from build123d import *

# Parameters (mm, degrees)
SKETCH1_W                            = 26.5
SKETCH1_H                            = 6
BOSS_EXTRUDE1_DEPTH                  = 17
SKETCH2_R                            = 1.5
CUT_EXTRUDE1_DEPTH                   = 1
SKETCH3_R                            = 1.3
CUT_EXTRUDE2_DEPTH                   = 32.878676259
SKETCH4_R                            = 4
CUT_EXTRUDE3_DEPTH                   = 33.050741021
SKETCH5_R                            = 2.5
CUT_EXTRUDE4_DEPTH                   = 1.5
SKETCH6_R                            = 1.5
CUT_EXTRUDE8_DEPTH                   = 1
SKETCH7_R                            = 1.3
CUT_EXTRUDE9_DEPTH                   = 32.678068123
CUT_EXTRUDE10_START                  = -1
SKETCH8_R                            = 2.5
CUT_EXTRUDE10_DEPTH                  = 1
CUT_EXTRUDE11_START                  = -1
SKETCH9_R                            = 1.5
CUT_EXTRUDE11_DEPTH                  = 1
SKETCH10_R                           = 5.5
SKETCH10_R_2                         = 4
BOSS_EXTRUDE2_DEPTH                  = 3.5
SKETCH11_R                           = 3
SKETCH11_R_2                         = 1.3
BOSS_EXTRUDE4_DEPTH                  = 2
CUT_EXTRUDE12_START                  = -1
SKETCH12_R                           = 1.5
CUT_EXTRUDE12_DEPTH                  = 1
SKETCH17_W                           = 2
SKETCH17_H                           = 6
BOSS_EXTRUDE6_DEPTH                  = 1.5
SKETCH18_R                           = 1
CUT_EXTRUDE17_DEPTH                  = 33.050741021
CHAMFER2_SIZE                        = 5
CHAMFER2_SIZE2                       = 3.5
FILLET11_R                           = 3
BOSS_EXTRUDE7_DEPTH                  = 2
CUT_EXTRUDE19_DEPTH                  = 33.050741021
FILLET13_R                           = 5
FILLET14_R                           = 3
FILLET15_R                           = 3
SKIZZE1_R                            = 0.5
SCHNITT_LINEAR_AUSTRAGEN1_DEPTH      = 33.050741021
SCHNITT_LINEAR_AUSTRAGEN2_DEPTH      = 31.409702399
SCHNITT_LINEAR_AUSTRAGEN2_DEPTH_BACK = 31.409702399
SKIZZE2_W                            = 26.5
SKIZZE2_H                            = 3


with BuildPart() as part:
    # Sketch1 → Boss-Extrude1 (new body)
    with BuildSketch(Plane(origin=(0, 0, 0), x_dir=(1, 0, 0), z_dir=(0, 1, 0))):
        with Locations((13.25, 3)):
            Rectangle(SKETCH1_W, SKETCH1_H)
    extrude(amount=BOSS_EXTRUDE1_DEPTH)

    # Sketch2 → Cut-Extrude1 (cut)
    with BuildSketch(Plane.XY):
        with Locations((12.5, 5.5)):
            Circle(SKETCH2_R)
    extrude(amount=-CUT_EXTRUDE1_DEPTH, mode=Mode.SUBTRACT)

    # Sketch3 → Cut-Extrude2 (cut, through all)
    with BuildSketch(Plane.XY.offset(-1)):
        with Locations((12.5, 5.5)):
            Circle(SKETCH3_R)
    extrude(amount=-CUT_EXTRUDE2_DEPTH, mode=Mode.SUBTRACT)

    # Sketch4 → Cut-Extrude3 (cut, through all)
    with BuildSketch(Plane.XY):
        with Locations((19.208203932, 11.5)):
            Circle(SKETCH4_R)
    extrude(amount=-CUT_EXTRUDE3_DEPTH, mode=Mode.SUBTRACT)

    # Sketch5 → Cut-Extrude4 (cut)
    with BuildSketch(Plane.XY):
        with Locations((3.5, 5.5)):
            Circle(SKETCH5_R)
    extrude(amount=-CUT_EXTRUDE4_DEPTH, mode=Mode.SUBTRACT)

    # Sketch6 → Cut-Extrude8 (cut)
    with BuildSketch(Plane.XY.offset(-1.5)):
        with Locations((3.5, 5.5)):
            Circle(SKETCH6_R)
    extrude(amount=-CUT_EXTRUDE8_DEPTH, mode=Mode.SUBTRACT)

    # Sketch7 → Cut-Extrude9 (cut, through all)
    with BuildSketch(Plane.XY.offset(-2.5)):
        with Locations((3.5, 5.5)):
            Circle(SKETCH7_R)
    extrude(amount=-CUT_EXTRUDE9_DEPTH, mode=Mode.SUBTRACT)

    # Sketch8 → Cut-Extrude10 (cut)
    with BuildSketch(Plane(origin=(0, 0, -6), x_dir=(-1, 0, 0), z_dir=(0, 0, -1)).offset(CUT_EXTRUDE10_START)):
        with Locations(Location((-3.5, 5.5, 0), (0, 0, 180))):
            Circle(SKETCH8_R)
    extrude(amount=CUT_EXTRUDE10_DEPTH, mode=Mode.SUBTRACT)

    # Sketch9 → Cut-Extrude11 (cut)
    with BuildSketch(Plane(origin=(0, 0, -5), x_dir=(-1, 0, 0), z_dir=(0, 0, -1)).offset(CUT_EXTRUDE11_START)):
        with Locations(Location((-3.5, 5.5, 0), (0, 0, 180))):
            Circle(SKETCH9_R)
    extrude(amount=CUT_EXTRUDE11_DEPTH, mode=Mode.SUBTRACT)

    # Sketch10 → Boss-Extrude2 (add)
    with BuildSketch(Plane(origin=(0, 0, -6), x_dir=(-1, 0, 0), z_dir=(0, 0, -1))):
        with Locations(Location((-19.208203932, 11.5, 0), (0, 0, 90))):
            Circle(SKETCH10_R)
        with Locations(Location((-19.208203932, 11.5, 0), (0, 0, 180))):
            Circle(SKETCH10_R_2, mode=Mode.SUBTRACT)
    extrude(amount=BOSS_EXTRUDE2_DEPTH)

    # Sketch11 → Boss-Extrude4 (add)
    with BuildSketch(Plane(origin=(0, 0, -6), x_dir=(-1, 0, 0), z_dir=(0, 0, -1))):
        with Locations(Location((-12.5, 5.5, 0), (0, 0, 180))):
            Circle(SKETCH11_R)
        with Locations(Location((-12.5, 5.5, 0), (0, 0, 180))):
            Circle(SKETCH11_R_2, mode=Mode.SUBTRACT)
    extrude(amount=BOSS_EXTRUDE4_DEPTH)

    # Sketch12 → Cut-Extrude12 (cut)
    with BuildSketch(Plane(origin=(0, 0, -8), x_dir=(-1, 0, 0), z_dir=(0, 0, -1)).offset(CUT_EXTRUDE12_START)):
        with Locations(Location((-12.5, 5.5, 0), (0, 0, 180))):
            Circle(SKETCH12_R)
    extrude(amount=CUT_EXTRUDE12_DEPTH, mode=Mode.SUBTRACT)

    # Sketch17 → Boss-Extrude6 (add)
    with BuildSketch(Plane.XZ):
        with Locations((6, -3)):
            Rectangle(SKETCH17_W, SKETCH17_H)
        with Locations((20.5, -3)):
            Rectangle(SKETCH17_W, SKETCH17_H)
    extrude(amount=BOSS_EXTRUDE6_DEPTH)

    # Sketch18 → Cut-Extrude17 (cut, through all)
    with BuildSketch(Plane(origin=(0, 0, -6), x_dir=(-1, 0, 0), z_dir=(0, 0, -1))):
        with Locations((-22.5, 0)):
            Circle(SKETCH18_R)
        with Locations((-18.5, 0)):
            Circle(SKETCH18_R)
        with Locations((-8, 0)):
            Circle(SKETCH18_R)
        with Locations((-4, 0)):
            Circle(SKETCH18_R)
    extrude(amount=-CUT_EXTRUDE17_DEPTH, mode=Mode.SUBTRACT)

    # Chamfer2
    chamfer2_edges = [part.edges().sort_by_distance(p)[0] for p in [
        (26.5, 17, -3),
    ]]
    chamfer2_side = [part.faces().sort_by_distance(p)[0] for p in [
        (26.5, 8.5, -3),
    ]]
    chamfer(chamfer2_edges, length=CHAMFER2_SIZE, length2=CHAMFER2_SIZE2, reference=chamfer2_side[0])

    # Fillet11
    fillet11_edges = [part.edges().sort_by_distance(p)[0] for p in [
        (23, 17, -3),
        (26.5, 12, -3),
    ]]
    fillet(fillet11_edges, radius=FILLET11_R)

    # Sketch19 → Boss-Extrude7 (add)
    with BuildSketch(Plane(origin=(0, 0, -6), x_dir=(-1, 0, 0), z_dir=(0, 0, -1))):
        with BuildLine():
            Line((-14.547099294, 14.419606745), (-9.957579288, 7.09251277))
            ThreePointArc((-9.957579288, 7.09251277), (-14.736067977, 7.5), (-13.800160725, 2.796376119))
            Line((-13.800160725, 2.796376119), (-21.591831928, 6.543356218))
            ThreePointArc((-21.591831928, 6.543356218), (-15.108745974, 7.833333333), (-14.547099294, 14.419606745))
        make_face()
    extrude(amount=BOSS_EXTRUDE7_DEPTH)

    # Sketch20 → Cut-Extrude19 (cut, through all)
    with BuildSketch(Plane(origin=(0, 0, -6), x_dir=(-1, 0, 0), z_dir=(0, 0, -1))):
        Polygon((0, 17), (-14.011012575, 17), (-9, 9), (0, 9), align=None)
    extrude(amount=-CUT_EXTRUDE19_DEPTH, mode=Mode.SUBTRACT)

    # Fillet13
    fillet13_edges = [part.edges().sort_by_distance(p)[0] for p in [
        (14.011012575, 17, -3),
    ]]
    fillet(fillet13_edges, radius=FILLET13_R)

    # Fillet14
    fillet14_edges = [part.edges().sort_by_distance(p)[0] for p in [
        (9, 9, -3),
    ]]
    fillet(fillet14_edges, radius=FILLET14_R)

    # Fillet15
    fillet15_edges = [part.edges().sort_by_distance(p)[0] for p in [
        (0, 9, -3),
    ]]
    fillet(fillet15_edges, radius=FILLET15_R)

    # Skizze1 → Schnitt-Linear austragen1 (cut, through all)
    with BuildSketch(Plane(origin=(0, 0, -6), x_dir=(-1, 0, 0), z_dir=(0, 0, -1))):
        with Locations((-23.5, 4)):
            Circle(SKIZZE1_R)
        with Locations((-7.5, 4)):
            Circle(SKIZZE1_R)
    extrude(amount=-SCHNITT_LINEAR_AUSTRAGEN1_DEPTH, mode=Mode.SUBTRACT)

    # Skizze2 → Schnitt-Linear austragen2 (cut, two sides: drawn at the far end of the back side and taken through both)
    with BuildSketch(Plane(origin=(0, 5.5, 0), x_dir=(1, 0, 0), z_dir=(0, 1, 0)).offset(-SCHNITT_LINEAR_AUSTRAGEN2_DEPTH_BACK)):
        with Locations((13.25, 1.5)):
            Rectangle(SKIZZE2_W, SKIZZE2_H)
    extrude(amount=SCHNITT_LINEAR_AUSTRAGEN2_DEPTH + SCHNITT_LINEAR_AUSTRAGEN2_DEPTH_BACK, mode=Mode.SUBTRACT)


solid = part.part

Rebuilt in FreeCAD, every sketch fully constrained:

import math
import FreeCAD as App
import Part
import Sketcher

V = App.Vector
Q = App.Units.Quantity


def edges_at(feature, points):
    """Names of the edges that pass closest to the given points."""
    edges = feature.Shape.Edges
    near = lambda p: min(range(len(edges)), key=lambda i: edges[i].distToShape(Part.Vertex(*p))[0])
    return sorted({f"Edge{near(p) + 1}" for p in points})

doc = App.newDocument("Part")
body = doc.addObject("PartDesign::Body", "Body")

# Sketch on XZ plane
sketch1 = body.newObject("Sketcher::SketchObject", "Sketch")
sketch1.AttachmentSupport = (doc.getObject("XZ_Plane"), [""])
sketch1.MapMode = "FlatFace"
sketch1.addGeometry(Part.LineSegment(V(0, -6, 0), V(0, 0, 0)), False)
sketch1.addGeometry(Part.LineSegment(V(0, 0, 0), V(26, 0, 0)), False)
sketch1.addGeometry(Part.LineSegment(V(26, 0, 0), V(26, -6, 0)), False)
sketch1.addGeometry(Part.LineSegment(V(26, -6, 0), V(0, -6, 0)), False)
sketch1.addConstraint(Sketcher.Constraint("Coincident", 0, 2, 1, 1))
sketch1.addConstraint(Sketcher.Constraint("Coincident", 1, 2, 2, 1))
sketch1.addConstraint(Sketcher.Constraint("Coincident", 2, 2, 3, 1))
sketch1.addConstraint(Sketcher.Constraint("Coincident", 3, 2, 0, 1))
sketch1.addConstraint(Sketcher.Constraint("Vertical", 0))
sketch1.addConstraint(Sketcher.Constraint("Horizontal", 1))
sketch1.addConstraint(Sketcher.Constraint("Vertical", 2))
sketch1.addConstraint(Sketcher.Constraint("Horizontal", 3))
sketch1.addConstraint(Sketcher.Constraint("Coincident", 0, 2, -1, 1))
sketch1.addConstraint(Sketcher.Constraint("DistanceY", 0, 1, 0, 2, Q("6 mm")))
sketch1.addConstraint(Sketcher.Constraint("DistanceX", 1, 1, 1, 2, Q("26.5 mm")))
pad1 = body.newObject("PartDesign::Pad", "Pad")
pad1.Profile = sketch1
pad1.Length = 17
pad1.Reversed = True

# Sketch on XY plane
sketch2 = body.newObject("Sketcher::SketchObject", "Sketch001")
sketch2.AttachmentSupport = (doc.getObject("XY_Plane"), [""])
sketch2.MapMode = "FlatFace"
sketch2.addGeometry(Part.Circle(V(12.5, 5.5, 0), V(0, 0, 1), 1.5), False)
sketch2.addConstraint(Sketcher.Constraint("Diameter", 0, Q("3 mm")))
sketch2.addConstraint(Sketcher.Constraint("DistanceX", -1, 1, 0, 3, Q("12.5 mm")))
sketch2.addConstraint(Sketcher.Constraint("DistanceY", -1, 1, 0, 3, Q("5.5 mm")))
pocket1 = body.newObject("PartDesign::Pocket", "Pocket")
pocket1.Profile = sketch2
pocket1.Length = 1

# Sketch on XY plane
sketch3 = body.newObject("Sketcher::SketchObject", "Sketch002")
sketch3.AttachmentSupport = (doc.getObject("XY_Plane"), [""])
sketch3.MapMode = "FlatFace"
sketch3.AttachmentOffset = App.Placement(V(0, 0, -1), App.Rotation())
sketch3.addGeometry(Part.Circle(V(12.5, 5.5, 0), V(0, 0, 1), 1.3), False)
sketch3.addConstraint(Sketcher.Constraint("Diameter", 0, Q("2.6 mm")))
sketch3.addConstraint(Sketcher.Constraint("DistanceX", -1, 1, 0, 3, Q("12.5 mm")))
sketch3.addConstraint(Sketcher.Constraint("DistanceY", -1, 1, 0, 3, Q("5.5 mm")))
pocket2 = body.newObject("PartDesign::Pocket", "Pocket001")
pocket2.Profile = sketch3
pocket2.Type = "ThroughAll"

# Sketch on XY plane
sketch4 = body.newObject("Sketcher::SketchObject", "Sketch003")
sketch4.AttachmentSupport = (doc.getObject("XY_Plane"), [""])
sketch4.MapMode = "FlatFace"
sketch4.addGeometry(Part.Circle(V(19.2, 11.5, 0), V(0, 0, 1), 4), False)
sketch4.addConstraint(Sketcher.Constraint("Diameter", 0, Q("8 mm")))
sketch4.addConstraint(Sketcher.Constraint("DistanceY", -1, 1, 0, 3, Q("11.5 mm")))
sketch4.addConstraint(Sketcher.Constraint("DistanceX", -1, 1, 0, 3, Q("19.208204 mm")))
pocket3 = body.newObject("PartDesign::Pocket", "Pocket002")
pocket3.Profile = sketch4
pocket3.Type = "ThroughAll"

# Sketch on XY plane
sketch5 = body.newObject("Sketcher::SketchObject", "Sketch004")
sketch5.AttachmentSupport = (doc.getObject("XY_Plane"), [""])
sketch5.MapMode = "FlatFace"
sketch5.addGeometry(Part.Circle(V(3.5, 5.5, 0), V(0, 0, 1), 2.5), False)
sketch5.addConstraint(Sketcher.Constraint("Diameter", 0, Q("5 mm")))
sketch5.addConstraint(Sketcher.Constraint("DistanceX", -1, 1, 0, 3, Q("3.5 mm")))
sketch5.addConstraint(Sketcher.Constraint("DistanceY", -1, 1, 0, 3, Q("5.5 mm")))
pocket4 = body.newObject("PartDesign::Pocket", "Pocket003")
pocket4.Profile = sketch5
pocket4.Length = 1.5

# Sketch on XY plane
sketch6 = body.newObject("Sketcher::SketchObject", "Sketch005")
sketch6.AttachmentSupport = (doc.getObject("XY_Plane"), [""])
sketch6.MapMode = "FlatFace"
sketch6.AttachmentOffset = App.Placement(V(0, 0, -1.5), App.Rotation())
sketch6.addGeometry(Part.Circle(V(3.5, 5.5, 0), V(0, 0, 1), 1.5), False)
sketch6.addConstraint(Sketcher.Constraint("Diameter", 0, Q("3 mm")))
sketch6.addConstraint(Sketcher.Constraint("DistanceX", -1, 1, 0, 3, Q("3.5 mm")))
sketch6.addConstraint(Sketcher.Constraint("DistanceY", -1, 1, 0, 3, Q("5.5 mm")))
pocket5 = body.newObject("PartDesign::Pocket", "Pocket004")
pocket5.Profile = sketch6
pocket5.Length = 1

# Sketch on XY plane
sketch7 = body.newObject("Sketcher::SketchObject", "Sketch006")
sketch7.AttachmentSupport = (doc.getObject("XY_Plane"), [""])
sketch7.MapMode = "FlatFace"
sketch7.AttachmentOffset = App.Placement(V(0, 0, -2.5), App.Rotation())
sketch7.addGeometry(Part.Circle(V(3.5, 5.5, 0), V(0, 0, 1), 1.3), False)
sketch7.addConstraint(Sketcher.Constraint("Diameter", 0, Q("2.6 mm")))
sketch7.addConstraint(Sketcher.Constraint("DistanceX", -1, 1, 0, 3, Q("3.5 mm")))
sketch7.addConstraint(Sketcher.Constraint("DistanceY", -1, 1, 0, 3, Q("5.5 mm")))
pocket6 = body.newObject("PartDesign::Pocket", "Pocket005")
pocket6.Profile = sketch7
pocket6.Type = "ThroughAll"

# Sketch on XY plane
sketch8 = body.newObject("Sketcher::SketchObject", "Sketch007")
sketch8.AttachmentSupport = (doc.getObject("XY_Plane"), [""])
sketch8.MapMode = "FlatFace"
sketch8.AttachmentOffset = App.Placement(V(0, 0, -5), App.Rotation())
sketch8.addGeometry(Part.Circle(V(3.5, 5.5, 0), V(0, 0, 1), 2.5), False)
sketch8.addConstraint(Sketcher.Constraint("Diameter", 0, Q("5 mm")))
sketch8.addConstraint(Sketcher.Constraint("DistanceX", -1, 1, 0, 3, Q("3.5 mm")))
sketch8.addConstraint(Sketcher.Constraint("DistanceY", -1, 1, 0, 3, Q("5.5 mm")))
pocket7 = body.newObject("PartDesign::Pocket", "Pocket006")
pocket7.Profile = sketch8
pocket7.Length = 1

# Sketch on XY plane
sketch9 = body.newObject("Sketcher::SketchObject", "Sketch008")
sketch9.AttachmentSupport = (doc.getObject("XY_Plane"), [""])
sketch9.MapMode = "FlatFace"
sketch9.AttachmentOffset = App.Placement(V(0, 0, -4), App.Rotation())
sketch9.addGeometry(Part.Circle(V(3.5, 5.5, 0), V(0, 0, 1), 1.5), False)
sketch9.addConstraint(Sketcher.Constraint("Diameter", 0, Q("3 mm")))
sketch9.addConstraint(Sketcher.Constraint("DistanceX", -1, 1, 0, 3, Q("3.5 mm")))
sketch9.addConstraint(Sketcher.Constraint("DistanceY", -1, 1, 0, 3, Q("5.5 mm")))
pocket8 = body.newObject("PartDesign::Pocket", "Pocket007")
pocket8.Profile = sketch9
pocket8.Length = 1

# Sketch on XY plane
sketch10 = body.newObject("Sketcher::SketchObject", "Sketch009")
sketch10.AttachmentSupport = (doc.getObject("XY_Plane"), [""])
sketch10.MapMode = "FlatFace"
sketch10.AttachmentOffset = App.Placement(V(0, 0, -6), App.Rotation())
sketch10.addGeometry(Part.Circle(V(19.2, 11.5, 0), V(0, 0, 1), 5.5), False)
sketch10.addGeometry(Part.Circle(V(19.2, 11.5, 0), V(0, 0, 1), 4), False)
sketch10.addConstraint(Sketcher.Constraint("Coincident", 1, 3, 0, 3))
sketch10.addConstraint(Sketcher.Constraint("Diameter", 0, Q("11 mm")))
sketch10.addConstraint(Sketcher.Constraint("Diameter", 1, Q("8 mm")))
sketch10.addConstraint(Sketcher.Constraint("DistanceY", -1, 1, 0, 3, Q("11.5 mm")))
sketch10.addConstraint(Sketcher.Constraint("DistanceX", -1, 1, 0, 3, Q("19.208204 mm")))
pad2 = body.newObject("PartDesign::Pad", "Pad001")
pad2.Profile = sketch10
pad2.Length = 3.5
pad2.Reversed = True

# Sketch on XY plane
sketch11 = body.newObject("Sketcher::SketchObject", "Sketch010")
sketch11.AttachmentSupport = (doc.getObject("XY_Plane"), [""])
sketch11.MapMode = "FlatFace"
sketch11.AttachmentOffset = App.Placement(V(0, 0, -6), App.Rotation())
sketch11.addGeometry(Part.Circle(V(12.5, 5.5, 0), V(0, 0, 1), 3), False)
sketch11.addGeometry(Part.Circle(V(12.5, 5.5, 0), V(0, 0, 1), 1.3), False)
sketch11.addConstraint(Sketcher.Constraint("Coincident", 1, 3, 0, 3))
sketch11.addConstraint(Sketcher.Constraint("Diameter", 0, Q("6 mm")))
sketch11.addConstraint(Sketcher.Constraint("Diameter", 1, Q("2.6 mm")))
sketch11.addConstraint(Sketcher.Constraint("DistanceX", -1, 1, 0, 3, Q("12.5 mm")))
sketch11.addConstraint(Sketcher.Constraint("DistanceY", -1, 1, 0, 3, Q("5.5 mm")))
pad3 = body.newObject("PartDesign::Pad", "Pad002")
pad3.Profile = sketch11
pad3.Length = 2
pad3.Reversed = True

# Sketch on XY plane
sketch12 = body.newObject("Sketcher::SketchObject", "Sketch011")
sketch12.AttachmentSupport = (doc.getObject("XY_Plane"), [""])
sketch12.MapMode = "FlatFace"
sketch12.AttachmentOffset = App.Placement(V(0, 0, -7), App.Rotation())
sketch12.addGeometry(Part.Circle(V(12.5, 5.5, 0), V(0, 0, 1), 1.5), False)
sketch12.addConstraint(Sketcher.Constraint("Diameter", 0, Q("3 mm")))
sketch12.addConstraint(Sketcher.Constraint("DistanceX", -1, 1, 0, 3, Q("12.5 mm")))
sketch12.addConstraint(Sketcher.Constraint("DistanceY", -1, 1, 0, 3, Q("5.5 mm")))
pocket9 = body.newObject("PartDesign::Pocket", "Pocket008")
pocket9.Profile = sketch12
pocket9.Length = 1

# Sketch on XZ plane
sketch13 = body.newObject("Sketcher::SketchObject", "Sketch012")
sketch13.AttachmentSupport = (doc.getObject("XZ_Plane"), [""])
sketch13.MapMode = "FlatFace"
sketch13.addGeometry(Part.LineSegment(V(5, 0, 0), V(5, -6, 0)), False)
sketch13.addGeometry(Part.LineSegment(V(5, -6, 0), V(7, -6, 0)), False)
sketch13.addGeometry(Part.LineSegment(V(7, -6, 0), V(7, 0, 0)), False)
sketch13.addGeometry(Part.LineSegment(V(7, 0, 0), V(5, 0, 0)), False)
sketch13.addGeometry(Part.LineSegment(V(19.5, 0, 0), V(19.5, -6, 0)), False)
sketch13.addGeometry(Part.LineSegment(V(19.5, -6, 0), V(21.5, -6, 0)), False)
sketch13.addGeometry(Part.LineSegment(V(21.5, -6, 0), V(21.5, 0, 0)), False)
sketch13.addGeometry(Part.LineSegment(V(21.5, 0, 0), V(19.5, 0, 0)), False)
sketch13.addConstraint(Sketcher.Constraint("Coincident", 0, 2, 1, 1))
sketch13.addConstraint(Sketcher.Constraint("Coincident", 1, 2, 2, 1))
sketch13.addConstraint(Sketcher.Constraint("Coincident", 2, 2, 3, 1))
sketch13.addConstraint(Sketcher.Constraint("Coincident", 3, 2, 0, 1))
sketch13.addConstraint(Sketcher.Constraint("Coincident", 4, 2, 5, 1))
sketch13.addConstraint(Sketcher.Constraint("Coincident", 5, 2, 6, 1))
sketch13.addConstraint(Sketcher.Constraint("Coincident", 6, 2, 7, 1))
sketch13.addConstraint(Sketcher.Constraint("Coincident", 7, 2, 4, 1))
sketch13.addConstraint(Sketcher.Constraint("Vertical", 0))
sketch13.addConstraint(Sketcher.Constraint("Horizontal", 1))
sketch13.addConstraint(Sketcher.Constraint("Vertical", 2))
sketch13.addConstraint(Sketcher.Constraint("Horizontal", 3))
sketch13.addConstraint(Sketcher.Constraint("Vertical", 4))
sketch13.addConstraint(Sketcher.Constraint("Horizontal", 5))
sketch13.addConstraint(Sketcher.Constraint("Vertical", 6))
sketch13.addConstraint(Sketcher.Constraint("Horizontal", 7))
sketch13.addConstraint(Sketcher.Constraint("PointOnObject", 2, 2, -1))
sketch13.addConstraint(Sketcher.Constraint("PointOnObject", 6, 2, -1))
sketch13.addConstraint(Sketcher.Constraint("Horizontal", 1, 2, 4, 2))
sketch13.addConstraint(Sketcher.Constraint("Equal", 3, 5))
sketch13.addConstraint(Sketcher.Constraint("DistanceX", 1, 1, 1, 2, Q("2 mm")))
sketch13.addConstraint(Sketcher.Constraint("DistanceY", 0, 2, 0, 1, Q("6 mm")))
sketch13.addConstraint(Sketcher.Constraint("DistanceX", -1, 1, 0, 2, Q("5 mm")))
sketch13.addConstraint(Sketcher.Constraint("DistanceX", -1, 1, 4, 2, Q("19.5 mm")))
pad4 = body.newObject("PartDesign::Pad", "Pad003")
pad4.Profile = sketch13
pad4.Length = 1.5

# Sketch on XY plane
sketch14 = body.newObject("Sketcher::SketchObject", "Sketch013")
sketch14.AttachmentSupport = (doc.getObject("XY_Plane"), [""])
sketch14.MapMode = "FlatFace"
sketch14.AttachmentOffset = App.Placement(V(0, 0, -6), App.Rotation())
sketch14.addGeometry(Part.Circle(V(22.5, 0, 0), V(0, 0, 1), 1), False)
sketch14.addGeometry(Part.Circle(V(18.5, 0, 0), V(0, 0, 1), 1), False)
sketch14.addGeometry(Part.Circle(V(8, 0, 0), V(0, 0, 1), 1), False)
sketch14.addGeometry(Part.Circle(V(4, 0, 0), V(0, 0, 1), 1), False)
sketch14.addConstraint(Sketcher.Constraint("Equal", 0, 1))
sketch14.addConstraint(Sketcher.Constraint("Equal", 1, 2))
sketch14.addConstraint(Sketcher.Constraint("Equal", 2, 3))
sketch14.addConstraint(Sketcher.Constraint("PointOnObject", 0, 3, -1))
sketch14.addConstraint(Sketcher.Constraint("PointOnObject", 1, 3, -1))
sketch14.addConstraint(Sketcher.Constraint("PointOnObject", 2, 3, -1))
sketch14.addConstraint(Sketcher.Constraint("PointOnObject", 3, 3, -1))
sketch14.addConstraint(Sketcher.Constraint("Diameter", 0, Q("2 mm")))
sketch14.addConstraint(Sketcher.Constraint("DistanceX", -1, 1, 2, 3, Q("8 mm")))
sketch14.addConstraint(Sketcher.Constraint("DistanceX", -1, 1, 3, 3, Q("4 mm")))
sketch14.addConstraint(Sketcher.Constraint("DistanceX", 1, 3, 0, 3, Q("4 mm")))
sketch14.addConstraint(Sketcher.Constraint("DistanceX", -1, 1, 0, 3, Q("22.5 mm")))
pocket10 = body.newObject("PartDesign::Pocket", "Pocket009")
pocket10.Profile = sketch14
pocket10.Type = "ThroughAll"
pocket10.Reversed = True
doc.recompute()

chamfer = body.newObject("PartDesign::Chamfer", "Chamfer")
chamfer.Base = (pocket10, edges_at(pocket10, [(26.5, 17, -3)]))
chamfer.ChamferType = "Two distances"
chamfer.Size = 5
chamfer.Size2 = 3.5
doc.recompute()

fillet = body.newObject("PartDesign::Fillet", "Fillet")
fillet.Base = (chamfer, edges_at(chamfer, [(23, 17, -3), (26.5, 12, -3)]))
fillet.Radius = 3

# Sketch on XY plane
sketch15 = body.newObject("Sketcher::SketchObject", "Sketch014")
sketch15.AttachmentSupport = (doc.getObject("XY_Plane"), [""])
sketch15.MapMode = "FlatFace"
sketch15.AttachmentOffset = App.Placement(V(0, 0, -6), App.Rotation())
sketch15.addGeometry(Part.LineSegment(V(10, 7.1, 0), V(14.5, 14.4, 0)), False)
sketch15.addGeometry(Part.ArcOfCircle(Part.Circle(V(19.2, 11.5, 0), V(0, 0, 1), 5.5), math.radians(148), math.radians(296)), False)
sketch15.addGeometry(Part.LineSegment(V(21.6, 6.5, 0), V(13.8, 2.8, 0)), False)
sketch15.addGeometry(Part.ArcOfCircle(Part.Circle(V(12.5, 5.5, 0), V(0, 0, 1), 3), math.radians(-64), math.radians(148)), False)
sketch15.addConstraint(Sketcher.Constraint("Tangent", 0, 2, 1, 1))
sketch15.addConstraint(Sketcher.Constraint("Tangent", 1, 2, 2, 1))
sketch15.addConstraint(Sketcher.Constraint("Tangent", 2, 2, 3, 1))
sketch15.addConstraint(Sketcher.Constraint("Tangent", 3, 2, 0, 1))
sketch15.addConstraint(Sketcher.Constraint("Radius", 3, Q("3 mm")))
sketch15.addConstraint(Sketcher.Constraint("Radius", 1, Q("5.5 mm")))
sketch15.addConstraint(Sketcher.Constraint("DistanceY", 3, 3, 1, 3, Q("6 mm")))
sketch15.addConstraint(Sketcher.Constraint("DistanceY", -1, 1, 1, 3, Q("11.5 mm")))
sketch15.addConstraint(Sketcher.Constraint("DistanceX", -1, 1, 3, 3, Q("12.5 mm")))
sketch15.addConstraint(Sketcher.Constraint("DistanceX", -1, 1, 0, 2, Q("14.547099 mm")))
pad5 = body.newObject("PartDesign::Pad", "Pad004")
pad5.Profile = sketch15
pad5.Length = 2
pad5.Reversed = True

# Sketch on XY plane
sketch16 = body.newObject("Sketcher::SketchObject", "Sketch015")
sketch16.AttachmentSupport = (doc.getObject("XY_Plane"), [""])
sketch16.MapMode = "FlatFace"
sketch16.AttachmentOffset = App.Placement(V(0, 0, -6), App.Rotation())
sketch16.addGeometry(Part.LineSegment(V(0, 17, 0), V(14, 17, 0)), False)
sketch16.addGeometry(Part.LineSegment(V(14, 17, 0), V(9, 9, 0)), False)
sketch16.addGeometry(Part.LineSegment(V(9, 9, 0), V(0, 9, 0)), False)
sketch16.addGeometry(Part.LineSegment(V(0, 9, 0), V(0, 17, 0)), False)
sketch16.addConstraint(Sketcher.Constraint("Coincident", 0, 2, 1, 1))
sketch16.addConstraint(Sketcher.Constraint("Coincident", 1, 2, 2, 1))
sketch16.addConstraint(Sketcher.Constraint("Coincident", 2, 2, 3, 1))
sketch16.addConstraint(Sketcher.Constraint("Coincident", 3, 2, 0, 1))
sketch16.addConstraint(Sketcher.Constraint("Horizontal", 0))
sketch16.addConstraint(Sketcher.Constraint("Horizontal", 2))
sketch16.addConstraint(Sketcher.Constraint("Vertical", 3))
sketch16.addConstraint(Sketcher.Constraint("PointOnObject", 2, 2, -2))
sketch16.addConstraint(Sketcher.Constraint("DistanceX", 2, 2, 2, 1, Q("9 mm")))
sketch16.addConstraint(Sketcher.Constraint("DistanceY", 3, 1, 3, 2, Q("8 mm")))
sketch16.addConstraint(Sketcher.Constraint("DistanceY", -1, 1, 0, 2, Q("17 mm")))
sketch16.addConstraint(Sketcher.Constraint("DistanceX", 0, 1, 0, 2, Q("14.011013 mm")))
pocket11 = body.newObject("PartDesign::Pocket", "Pocket010")
pocket11.Profile = sketch16
pocket11.Type = "ThroughAll"
pocket11.Reversed = True
doc.recompute()

fillet2 = body.newObject("PartDesign::Fillet", "Fillet001")
fillet2.Base = (pocket11, edges_at(pocket11, [(14.011, 17, -3)]))
fillet2.Radius = 5
doc.recompute()

fillet3 = body.newObject("PartDesign::Fillet", "Fillet002")
fillet3.Base = (fillet2, edges_at(fillet2, [(9, 9, -3)]))
fillet3.Radius = 3
doc.recompute()

fillet4 = body.newObject("PartDesign::Fillet", "Fillet003")
fillet4.Base = (fillet3, edges_at(fillet3, [(0, 9, -3)]))
fillet4.Radius = 3

# Sketch on XY plane
sketch17 = body.newObject("Sketcher::SketchObject", "Sketch016")
sketch17.AttachmentSupport = (doc.getObject("XY_Plane"), [""])
sketch17.MapMode = "FlatFace"
sketch17.AttachmentOffset = App.Placement(V(0, 0, -6), App.Rotation())
sketch17.addGeometry(Part.Circle(V(23.5, 4, 0), V(0, 0, 1), 0.5), False)
sketch17.addGeometry(Part.Circle(V(7.5, 4, 0), V(0, 0, 1), 0.5), False)
sketch17.addConstraint(Sketcher.Constraint("Equal", 0, 1))
sketch17.addConstraint(Sketcher.Constraint("Horizontal", 0, 3, 1, 3))
sketch17.addConstraint(Sketcher.Constraint("Diameter", 0, Q("1 mm")))
sketch17.addConstraint(Sketcher.Constraint("DistanceY", -1, 1, 0, 3, Q("4 mm")))
sketch17.addConstraint(Sketcher.Constraint("DistanceX", 1, 3, 0, 3, Q("16 mm")))
sketch17.addConstraint(Sketcher.Constraint("DistanceX", -1, 1, 0, 3, Q("23.5 mm")))
pocket12 = body.newObject("PartDesign::Pocket", "Pocket011")
pocket12.Profile = sketch17
pocket12.Type = "ThroughAll"
pocket12.Reversed = True

# Sketch on XZ plane
sketch18 = body.newObject("Sketcher::SketchObject", "Sketch017")
sketch18.AttachmentSupport = (doc.getObject("XZ_Plane"), [""])
sketch18.MapMode = "FlatFace"
sketch18.AttachmentOffset = App.Placement(V(0, 0, -5.5), App.Rotation())
sketch18.addGeometry(Part.LineSegment(V(0, -3, 0), V(0, 0, 0)), False)
sketch18.addGeometry(Part.LineSegment(V(0, 0, 0), V(26.5, 0, 0)), False)
sketch18.addGeometry(Part.LineSegment(V(26.5, 0, 0), V(26.5, -3, 0)), False)
sketch18.addGeometry(Part.LineSegment(V(26.5, -3, 0), V(0, -3, 0)), False)
sketch18.addConstraint(Sketcher.Constraint("Coincident", 0, 2, 1, 1))
sketch18.addConstraint(Sketcher.Constraint("Coincident", 1, 2, 2, 1))
sketch18.addConstraint(Sketcher.Constraint("Coincident", 2, 2, 3, 1))
sketch18.addConstraint(Sketcher.Constraint("Coincident", 3, 2, 0, 1))
sketch18.addConstraint(Sketcher.Constraint("Vertical", 0))
sketch18.addConstraint(Sketcher.Constraint("Horizontal", 1))
sketch18.addConstraint(Sketcher.Constraint("Vertical", 2))
sketch18.addConstraint(Sketcher.Constraint("Horizontal", 3))
sketch18.addConstraint(Sketcher.Constraint("Coincident", 0, 2, -1, 1))
sketch18.addConstraint(Sketcher.Constraint("DistanceY", 0, 1, 0, 2, Q("3 mm")))
sketch18.addConstraint(Sketcher.Constraint("DistanceX", 1, 1, 1, 2, Q("26.5 mm")))
pocket13 = body.newObject("PartDesign::Pocket", "Pocket012")
pocket13.Profile = sketch18
pocket13.Type = "ThroughAll"
pocket13.Midplane = True

doc.recompute()
